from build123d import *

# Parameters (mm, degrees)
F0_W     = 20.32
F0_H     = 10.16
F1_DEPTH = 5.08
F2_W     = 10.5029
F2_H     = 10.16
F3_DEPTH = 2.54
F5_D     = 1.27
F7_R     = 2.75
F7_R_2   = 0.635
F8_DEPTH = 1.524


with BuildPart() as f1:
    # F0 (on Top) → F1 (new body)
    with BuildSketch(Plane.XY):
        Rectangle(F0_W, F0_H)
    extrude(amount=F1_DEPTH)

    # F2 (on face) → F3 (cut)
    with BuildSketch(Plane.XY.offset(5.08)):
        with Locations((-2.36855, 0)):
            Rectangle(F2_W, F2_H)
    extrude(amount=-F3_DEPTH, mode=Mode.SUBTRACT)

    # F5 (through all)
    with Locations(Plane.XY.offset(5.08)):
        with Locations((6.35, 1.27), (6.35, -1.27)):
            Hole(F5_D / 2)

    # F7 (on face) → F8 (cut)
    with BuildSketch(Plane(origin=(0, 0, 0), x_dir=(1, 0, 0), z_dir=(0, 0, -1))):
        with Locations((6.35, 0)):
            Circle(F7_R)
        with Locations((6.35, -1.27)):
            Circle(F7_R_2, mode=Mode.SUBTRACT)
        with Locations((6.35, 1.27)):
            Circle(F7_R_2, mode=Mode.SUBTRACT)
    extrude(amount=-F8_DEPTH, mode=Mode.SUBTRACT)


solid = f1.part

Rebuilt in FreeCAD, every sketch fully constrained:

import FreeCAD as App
import Part
import Sketcher
from FreeCAD import Vector
Q = App.Units.Quantity

doc = App.newDocument("Part")
params = doc.addObject("Spreadsheet::Sheet", "Params")
for row, (alias, value) in enumerate([
    ("sketch1_width", "0.8 in"),
    ("sketch1_height", "0.4 in"),
    ("pad1_length", "0.2 in"),
    ("sketch2_height", "0.4 in"),
    ("pocket1_length", "0.1 in"),
    ("sketch3_diameter", "0.05 in"),
    ("hole_diameter", "0.05 in"),
    ("sketch4_diameter", "0.05 in"),
    ("pocket2_length", "0.06 in"),
], start=1):
    params.set(f"A{row}", alias)
    params.set(f"B{row}", "=" + value)
    params.setAlias(f"B{row}", alias)

body = doc.addObject("PartDesign::Body", "Body")

sketch1 = body.newObject("Sketcher::SketchObject", "Sketch")
sketch1.AttachmentSupport = (doc.getObject("XY_Plane"), [""])
sketch1.MapMode = "FlatFace"
sketch1.addGeometry([
    Part.LineSegment(Vector(-10, 5, 0), Vector(-10, -5, 0)),
    Part.LineSegment(Vector(-10, -5, 0), Vector(10, -5, 0)),
    Part.LineSegment(Vector(10, -5, 0), Vector(10, 5, 0)),
    Part.LineSegment(Vector(10, 5, 0), Vector(-10, 5, 0)),
], False)
sketch1.addConstraint([
    Sketcher.Constraint("Coincident", 0, 2, 1, 1),
    Sketcher.Constraint("Coincident", 1, 2, 2, 1),
    Sketcher.Constraint("Coincident", 2, 2, 3, 1),
    Sketcher.Constraint("Coincident", 3, 2, 0, 1),
    Sketcher.Constraint("Vertical", 0),
    Sketcher.Constraint("Horizontal", 1),
    Sketcher.Constraint("Vertical", 2),
    Sketcher.Constraint("Horizontal", 3),
    Sketcher.Constraint("Symmetric", 0, 2, 2, 2, -1, 1),
    Sketcher.Constraint("DistanceX", 1, 1, 1, 2, Q("0.8 in")),
    Sketcher.Constraint("DistanceY", 0, 2, 0, 1, Q("0.4 in")),
])
sketch1.setExpression("Constraints[9]", "Params.sketch1_width")
sketch1.setExpression("Constraints[10]", "Params.sketch1_height")
pad1 = body.newObject("PartDesign::Pad", "Pad")
pad1.Profile = sketch1
pad1.setExpression("Length", "Params.pad1_length")

sketch2 = body.newObject("Sketcher::SketchObject", "Sketch001")
sketch2.AttachmentSupport = (doc.getObject("XY_Plane"), [""])
sketch2.MapMode = "FlatFace"
sketch2.AttachmentOffset = App.Placement(Vector(0, 0, 0.2 * 25.4), App.Rotation())
sketch2.addGeometry([
    Part.LineSegment(Vector(-8, 5, 0), Vector(-8, -5, 0)),
    Part.LineSegment(Vector(-8, -5, 0), Vector(3, -5, 0)),
    Part.LineSegment(Vector(3, -5, 0), Vector(3, 5, 0)),
    Part.LineSegment(Vector(3, 5, 0), Vector(-8, 5, 0)),
], False)
sketch2.addConstraint([
    Sketcher.Constraint("Coincident", 0, 2, 1, 1),
    Sketcher.Constraint("Coincident", 1, 2, 2, 1),
    Sketcher.Constraint("Coincident", 2, 2, 3, 1),
    Sketcher.Constraint("Coincident", 3, 2, 0, 1),
    Sketcher.Constraint("Vertical", 0),
    Sketcher.Constraint("Horizontal", 1),
    Sketcher.Constraint("Vertical", 2),
    Sketcher.Constraint("Horizontal", 3),
    Sketcher.Constraint("DistanceY", 0, 2, 0, 1, Q("0.4 in")),
    Sketcher.Constraint("DistanceX", 0, 2, -1, 1, Q("0.3 in")),
    Sketcher.Constraint("DistanceY", 0, 2, -1, 1, Q("0.2 in")),
    Sketcher.Constraint("DistanceX", 1, 1, 1, 2, Q("0.4135 in")),
])
sketch2.setExpression("Constraints[8]", "Params.sketch2_height")
pocket1 = body.newObject("PartDesign::Pocket", "Pocket")
pocket1.Profile = sketch2
pocket1.setExpression("Length", "Params.pocket1_length")

sketch3 = body.newObject("Sketcher::SketchObject", "Sketch002")
sketch3.AttachmentSupport = (doc.getObject("XY_Plane"), [""])
sketch3.MapMode = "FlatFace"
sketch3.AttachmentOffset = App.Placement(Vector(0, 0, 0.2 * 25.4), App.Rotation())
sketch3.addGeometry([
    Part.Circle(Vector(6.3, 1.3, 0), Vector(0, 0, 1), 0.6),
    Part.Circle(Vector(6.3, -1.3, 0), Vector(0, 0, 1), 0.6),
], False)
sketch3.addConstraint([
    Sketcher.Constraint("Equal", 0, 1),
    Sketcher.Constraint("Symmetric", 0, 3, 1, 3, -1),
    Sketcher.Constraint("Diameter", 0, Q("0.05 in")),
    Sketcher.Constraint("DistanceY", 1, 3, 0, 3, Q("0.1 in")),
    Sketcher.Constraint("DistanceX", -1, 1, 0, 3, Q("0.25 in")),
])
sketch3.setExpression("Constraints[2]", "Params.sketch3_diameter")
doc.recompute()
hole = body.newObject("PartDesign::Hole", "Hole")
hole.Profile = sketch3
hole.ThreadType = "None"
hole.setExpression("Diameter", "Params.hole_diameter")
hole.DepthType = "ThroughAll"

sketch4 = body.newObject("Sketcher::SketchObject", "Sketch003")
sketch4.AttachmentSupport = (doc.getObject("XY_Plane"), [""])
sketch4.MapMode = "FlatFace"
sketch4.addGeometry([
    Part.Circle(Vector(6.3, 0, 0), Vector(0, 0, 1), 2.8),
    Part.Circle(Vector(6.3, 1.3, 0), Vector(0, 0, 1), 0.6),
    Part.Circle(Vector(6.3, -1.3, 0), Vector(0, 0, 1), 0.6),
], False)
sketch4.addConstraint([
    Sketcher.Constraint("Equal", 1, 2),
    Sketcher.Constraint("Symmetric", 1, 3, 2, 3, -1),
    Sketcher.Constraint("PointOnObject", 0, 3, -1),
    Sketcher.Constraint("Vertical", 0, 3, 1, 3),
    Sketcher.Constraint("Diameter", 1, Q("0.05 in")),
    Sketcher.Constraint("DistanceY", 2, 3, 1, 3, Q("0.1 in")),
    Sketcher.Constraint("Diameter", 0, Q("5.5 mm")),
    Sketcher.Constraint("DistanceX", -1, 1, 0, 3, Q("0.25 in")),
])
sketch4.setExpression("Constraints[4]", "Params.sketch4_diameter")
pocket2 = body.newObject("PartDesign::Pocket", "Pocket001")
pocket2.Profile = sketch4
pocket2.setExpression("Length", "Params.pocket2_length")
pocket2.Reversed = True

doc.recompute()
